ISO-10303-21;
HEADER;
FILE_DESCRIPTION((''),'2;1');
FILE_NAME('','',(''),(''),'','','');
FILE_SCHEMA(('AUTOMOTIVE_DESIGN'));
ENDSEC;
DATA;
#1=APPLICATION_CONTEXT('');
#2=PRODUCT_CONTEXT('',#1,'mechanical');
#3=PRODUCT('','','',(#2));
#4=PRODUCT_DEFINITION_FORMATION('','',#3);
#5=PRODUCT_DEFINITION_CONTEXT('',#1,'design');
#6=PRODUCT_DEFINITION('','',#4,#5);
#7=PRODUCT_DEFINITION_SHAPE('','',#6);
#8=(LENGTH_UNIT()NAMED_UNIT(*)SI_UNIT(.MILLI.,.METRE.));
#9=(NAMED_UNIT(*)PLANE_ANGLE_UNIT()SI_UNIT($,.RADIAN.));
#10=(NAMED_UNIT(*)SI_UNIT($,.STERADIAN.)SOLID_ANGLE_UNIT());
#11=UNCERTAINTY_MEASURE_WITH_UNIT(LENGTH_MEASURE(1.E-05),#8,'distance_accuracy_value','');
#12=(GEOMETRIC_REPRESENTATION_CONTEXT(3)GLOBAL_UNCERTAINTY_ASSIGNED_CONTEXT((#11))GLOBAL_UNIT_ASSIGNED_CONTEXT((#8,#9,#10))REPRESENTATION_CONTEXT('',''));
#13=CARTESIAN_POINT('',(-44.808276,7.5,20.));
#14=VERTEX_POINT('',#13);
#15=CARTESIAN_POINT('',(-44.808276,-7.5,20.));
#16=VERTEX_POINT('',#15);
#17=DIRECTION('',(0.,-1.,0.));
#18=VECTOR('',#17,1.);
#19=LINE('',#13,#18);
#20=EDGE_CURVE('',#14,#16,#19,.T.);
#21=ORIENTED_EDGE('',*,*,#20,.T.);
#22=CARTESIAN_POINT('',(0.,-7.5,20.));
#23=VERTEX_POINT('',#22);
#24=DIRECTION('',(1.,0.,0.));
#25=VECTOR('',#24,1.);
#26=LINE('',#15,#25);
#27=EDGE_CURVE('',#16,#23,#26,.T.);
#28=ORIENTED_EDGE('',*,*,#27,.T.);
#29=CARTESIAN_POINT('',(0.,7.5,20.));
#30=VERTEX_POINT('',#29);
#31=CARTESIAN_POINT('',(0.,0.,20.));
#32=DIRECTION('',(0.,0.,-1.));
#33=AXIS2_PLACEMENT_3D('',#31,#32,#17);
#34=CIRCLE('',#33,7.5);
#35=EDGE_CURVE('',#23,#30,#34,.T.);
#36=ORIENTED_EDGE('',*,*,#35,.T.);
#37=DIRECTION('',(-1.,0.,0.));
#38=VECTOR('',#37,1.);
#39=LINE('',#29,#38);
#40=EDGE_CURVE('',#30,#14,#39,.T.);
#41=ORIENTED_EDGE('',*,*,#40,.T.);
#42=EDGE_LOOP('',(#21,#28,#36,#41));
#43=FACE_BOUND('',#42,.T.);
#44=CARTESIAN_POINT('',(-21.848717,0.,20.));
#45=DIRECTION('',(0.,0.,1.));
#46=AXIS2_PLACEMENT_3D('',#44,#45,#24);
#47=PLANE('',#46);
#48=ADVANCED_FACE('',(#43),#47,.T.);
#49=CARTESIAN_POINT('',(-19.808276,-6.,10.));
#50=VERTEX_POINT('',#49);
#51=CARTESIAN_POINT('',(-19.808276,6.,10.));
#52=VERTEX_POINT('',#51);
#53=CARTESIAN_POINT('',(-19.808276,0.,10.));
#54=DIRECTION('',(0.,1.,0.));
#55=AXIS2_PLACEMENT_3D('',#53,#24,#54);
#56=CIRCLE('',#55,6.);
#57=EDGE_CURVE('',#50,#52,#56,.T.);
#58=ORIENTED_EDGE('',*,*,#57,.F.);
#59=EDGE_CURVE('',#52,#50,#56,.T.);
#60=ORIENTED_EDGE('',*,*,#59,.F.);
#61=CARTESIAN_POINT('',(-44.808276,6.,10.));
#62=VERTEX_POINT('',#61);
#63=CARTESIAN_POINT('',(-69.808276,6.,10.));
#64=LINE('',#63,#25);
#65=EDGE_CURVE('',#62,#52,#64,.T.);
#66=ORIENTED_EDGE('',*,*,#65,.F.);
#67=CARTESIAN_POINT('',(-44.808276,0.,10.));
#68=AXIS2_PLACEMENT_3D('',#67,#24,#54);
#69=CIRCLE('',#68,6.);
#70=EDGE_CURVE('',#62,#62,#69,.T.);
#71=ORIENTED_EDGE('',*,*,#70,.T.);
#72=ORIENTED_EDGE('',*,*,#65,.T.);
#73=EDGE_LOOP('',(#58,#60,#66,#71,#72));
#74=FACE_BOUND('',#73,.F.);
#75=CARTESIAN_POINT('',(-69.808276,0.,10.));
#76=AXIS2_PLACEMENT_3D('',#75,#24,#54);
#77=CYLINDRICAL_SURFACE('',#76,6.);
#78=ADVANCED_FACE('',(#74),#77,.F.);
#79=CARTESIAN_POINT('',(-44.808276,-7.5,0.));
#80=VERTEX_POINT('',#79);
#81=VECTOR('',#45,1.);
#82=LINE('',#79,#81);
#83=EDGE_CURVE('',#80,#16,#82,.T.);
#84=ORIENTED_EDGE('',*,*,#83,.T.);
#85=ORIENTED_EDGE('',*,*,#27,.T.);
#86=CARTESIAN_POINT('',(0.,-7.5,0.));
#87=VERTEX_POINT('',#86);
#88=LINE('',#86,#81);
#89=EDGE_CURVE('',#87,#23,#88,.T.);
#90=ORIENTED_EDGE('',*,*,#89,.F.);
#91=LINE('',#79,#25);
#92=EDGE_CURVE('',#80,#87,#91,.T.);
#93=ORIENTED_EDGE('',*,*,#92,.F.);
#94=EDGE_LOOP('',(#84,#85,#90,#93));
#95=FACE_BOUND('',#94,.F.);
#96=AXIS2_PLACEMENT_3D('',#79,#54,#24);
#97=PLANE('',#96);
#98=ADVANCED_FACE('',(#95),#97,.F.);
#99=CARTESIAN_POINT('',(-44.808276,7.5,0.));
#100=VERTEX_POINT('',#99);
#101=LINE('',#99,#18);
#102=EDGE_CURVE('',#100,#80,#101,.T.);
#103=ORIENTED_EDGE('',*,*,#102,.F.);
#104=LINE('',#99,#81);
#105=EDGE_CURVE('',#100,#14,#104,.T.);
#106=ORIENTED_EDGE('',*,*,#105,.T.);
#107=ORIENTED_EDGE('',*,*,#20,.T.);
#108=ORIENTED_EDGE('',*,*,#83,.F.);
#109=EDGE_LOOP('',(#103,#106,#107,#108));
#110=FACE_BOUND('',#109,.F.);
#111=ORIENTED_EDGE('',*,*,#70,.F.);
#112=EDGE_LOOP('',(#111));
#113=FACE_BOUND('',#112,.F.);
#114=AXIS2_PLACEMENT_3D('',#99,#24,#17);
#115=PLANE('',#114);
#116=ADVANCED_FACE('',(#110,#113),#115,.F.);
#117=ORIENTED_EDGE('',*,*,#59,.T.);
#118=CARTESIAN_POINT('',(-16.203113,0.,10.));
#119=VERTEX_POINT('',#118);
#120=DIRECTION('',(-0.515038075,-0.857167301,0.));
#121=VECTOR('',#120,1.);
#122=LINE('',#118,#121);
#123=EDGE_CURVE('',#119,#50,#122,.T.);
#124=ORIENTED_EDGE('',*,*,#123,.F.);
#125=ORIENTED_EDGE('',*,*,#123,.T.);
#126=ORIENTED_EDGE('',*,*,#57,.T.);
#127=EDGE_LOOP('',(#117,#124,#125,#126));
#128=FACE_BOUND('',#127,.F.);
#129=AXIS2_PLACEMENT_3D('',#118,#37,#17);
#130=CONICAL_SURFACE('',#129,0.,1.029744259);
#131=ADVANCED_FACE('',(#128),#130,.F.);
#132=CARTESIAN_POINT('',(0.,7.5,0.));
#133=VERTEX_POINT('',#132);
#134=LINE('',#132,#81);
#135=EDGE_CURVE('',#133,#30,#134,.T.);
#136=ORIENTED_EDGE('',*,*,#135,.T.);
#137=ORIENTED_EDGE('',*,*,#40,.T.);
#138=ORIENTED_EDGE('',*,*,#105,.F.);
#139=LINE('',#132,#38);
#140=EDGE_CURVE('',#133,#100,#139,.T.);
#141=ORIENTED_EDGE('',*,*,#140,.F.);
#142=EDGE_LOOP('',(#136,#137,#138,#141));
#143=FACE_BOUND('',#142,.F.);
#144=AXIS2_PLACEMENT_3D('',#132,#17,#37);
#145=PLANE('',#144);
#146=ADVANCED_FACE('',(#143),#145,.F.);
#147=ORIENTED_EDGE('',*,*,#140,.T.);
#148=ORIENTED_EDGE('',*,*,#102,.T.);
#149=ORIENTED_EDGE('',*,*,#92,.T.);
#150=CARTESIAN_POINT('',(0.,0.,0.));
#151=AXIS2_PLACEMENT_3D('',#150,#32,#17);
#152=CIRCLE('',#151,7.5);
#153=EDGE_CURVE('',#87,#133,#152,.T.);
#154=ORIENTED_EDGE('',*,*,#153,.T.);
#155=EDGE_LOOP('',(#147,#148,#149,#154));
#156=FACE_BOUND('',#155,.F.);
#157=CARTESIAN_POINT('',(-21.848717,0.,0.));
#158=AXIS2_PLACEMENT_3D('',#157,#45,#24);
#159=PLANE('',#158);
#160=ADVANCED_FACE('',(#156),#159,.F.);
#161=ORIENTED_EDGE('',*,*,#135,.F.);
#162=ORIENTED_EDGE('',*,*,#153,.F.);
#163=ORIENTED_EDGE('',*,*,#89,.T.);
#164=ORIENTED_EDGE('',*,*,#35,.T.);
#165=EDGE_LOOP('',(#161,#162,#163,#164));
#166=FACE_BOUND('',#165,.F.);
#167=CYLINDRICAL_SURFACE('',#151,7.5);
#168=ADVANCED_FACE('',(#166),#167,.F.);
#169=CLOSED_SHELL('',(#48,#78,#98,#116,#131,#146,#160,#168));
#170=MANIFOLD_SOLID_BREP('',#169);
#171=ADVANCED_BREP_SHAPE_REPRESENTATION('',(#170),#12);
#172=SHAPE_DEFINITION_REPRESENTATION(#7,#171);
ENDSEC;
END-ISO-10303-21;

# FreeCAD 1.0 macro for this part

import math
import FreeCAD as App
import Part
import Sketcher
from FreeCAD import Vector
Q = App.Units.Quantity

doc = App.newDocument("Part")
body = doc.addObject("PartDesign::Body", "Body")

sketch1 = body.newObject("Sketcher::SketchObject", "Sketch")
sketch1.AttachmentSupport = (doc.getObject("XY_Plane"), [""])
sketch1.MapMode = "FlatFace"
sketch1.addGeometry([
    Part.ArcOfCircle(Part.Circle(Vector(0, 0, 0), Vector(0, 0, 1), 7.5), math.radians(90), math.radians(270)),
    Part.LineSegment(Vector(0, 7.5, 0), Vector(-44.808276, 7.5, 0)),
    Part.LineSegment(Vector(-44.808276, 7.5, 0), Vector(-44.808276, -7.5, 0)),
    Part.LineSegment(Vector(-44.808276, -7.5, 0), Vector(0, -7.5, 0)),
], False)
sketch1.addConstraint([
    Sketcher.Constraint("Tangent", 0, 1, 1, 1),
    Sketcher.Constraint("Coincident", 1, 2, 2, 1),
    Sketcher.Constraint("Coincident", 2, 2, 3, 1),
    Sketcher.Constraint("Tangent", 3, 2, 0, 2),
    Sketcher.Constraint("Horizontal", 1),
    Sketcher.Constraint("Vertical", 2),
    Sketcher.Constraint("Horizontal", 3),
    Sketcher.Constraint("Coincident", 0, 3, -1, 1),
    Sketcher.Constraint("Radius", 0, Q("7.5 mm")),
    Sketcher.Constraint("DistanceX", 1, 2, 1, 1, Q("44.808276 mm")),
])
pad1 = body.newObject("PartDesign::Pad", "Pad")
pad1.Profile = sketch1
pad1.Length = 20

sketch2 = body.newObject("Sketcher::SketchObject", "Sketch001")
sketch2.AttachmentSupport = (doc.getObject("YZ_Plane"), [""])
sketch2.MapMode = "FlatFace"
sketch2.AttachmentOffset = App.Placement(Vector(0, 0, -44.808276), App.Rotation())
sketch2.addGeometry(Part.Circle(Vector(0, 10, 0), Vector(0, 0, 1), 6), False)
sketch2.addConstraint([
    Sketcher.Constraint("PointOnObject", 0, 3, -2),
    Sketcher.Constraint("Diameter", 0, Q("12 mm")),
    Sketcher.Constraint("DistanceY", -1, 1, 0, 3, Q("10 mm")),
])
doc.recompute()
hole = body.newObject("PartDesign::Hole", "Hole")
hole.Profile = sketch2
hole.ThreadType = "None"
hole.Diameter = 12
hole.DepthType = "Dimension"
hole.Depth = 25
hole.DrillPoint = "Angled"
hole.DrillPointAngle = 118
hole.Reversed = True

doc.recompute()
